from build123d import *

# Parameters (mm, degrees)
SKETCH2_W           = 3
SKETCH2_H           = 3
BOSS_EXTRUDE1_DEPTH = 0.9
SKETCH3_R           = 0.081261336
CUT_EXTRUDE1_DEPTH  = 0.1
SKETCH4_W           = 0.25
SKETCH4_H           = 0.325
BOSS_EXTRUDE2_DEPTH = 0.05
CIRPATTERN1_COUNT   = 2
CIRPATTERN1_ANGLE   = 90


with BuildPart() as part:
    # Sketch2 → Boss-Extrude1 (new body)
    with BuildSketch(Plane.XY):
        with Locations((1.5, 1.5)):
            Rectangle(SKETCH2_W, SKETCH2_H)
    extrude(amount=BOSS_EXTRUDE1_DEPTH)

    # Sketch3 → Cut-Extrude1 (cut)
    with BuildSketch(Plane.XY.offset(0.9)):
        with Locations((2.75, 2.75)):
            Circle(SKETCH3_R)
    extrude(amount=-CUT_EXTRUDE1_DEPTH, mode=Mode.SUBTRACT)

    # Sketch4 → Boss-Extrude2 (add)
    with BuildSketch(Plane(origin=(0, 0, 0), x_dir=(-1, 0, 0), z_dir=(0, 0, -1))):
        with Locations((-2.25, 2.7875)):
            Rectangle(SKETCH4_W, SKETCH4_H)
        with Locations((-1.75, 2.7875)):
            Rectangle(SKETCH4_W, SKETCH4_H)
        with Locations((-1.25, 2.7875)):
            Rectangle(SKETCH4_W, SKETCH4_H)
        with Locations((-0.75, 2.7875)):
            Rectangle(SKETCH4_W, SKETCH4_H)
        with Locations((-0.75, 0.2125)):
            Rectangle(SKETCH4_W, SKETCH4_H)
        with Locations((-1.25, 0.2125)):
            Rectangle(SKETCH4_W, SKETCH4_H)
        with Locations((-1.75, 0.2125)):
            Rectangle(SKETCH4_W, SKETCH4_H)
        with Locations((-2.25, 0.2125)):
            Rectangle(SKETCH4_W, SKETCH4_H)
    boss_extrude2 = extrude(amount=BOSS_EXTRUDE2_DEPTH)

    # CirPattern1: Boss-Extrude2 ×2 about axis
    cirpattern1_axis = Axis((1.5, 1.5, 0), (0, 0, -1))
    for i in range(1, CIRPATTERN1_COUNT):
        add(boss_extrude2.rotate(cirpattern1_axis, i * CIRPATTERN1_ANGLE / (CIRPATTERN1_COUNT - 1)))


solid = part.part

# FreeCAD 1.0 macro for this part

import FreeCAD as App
import Part
import Sketcher
from FreeCAD import Vector
Q = App.Units.Quantity

doc = App.newDocument("Part")
body = doc.addObject("PartDesign::Body", "Body")

sketch1 = body.newObject("Sketcher::SketchObject", "Sketch")
sketch1.AttachmentSupport = (doc.getObject("XY_Plane"), [""])
sketch1.MapMode = "FlatFace"
sketch1.addGeometry([
    Part.LineSegment(Vector(0, 3, 0), Vector(0, 0, 0)),
    Part.LineSegment(Vector(0, 0, 0), Vector(3, 0, 0)),
    Part.LineSegment(Vector(3, 0, 0), Vector(3, 3, 0)),
    Part.LineSegment(Vector(3, 3, 0), Vector(0, 3, 0)),
], False)
sketch1.addConstraint([
    Sketcher.Constraint("Coincident", 0, 2, 1, 1),
    Sketcher.Constraint("Coincident", 1, 2, 2, 1),
    Sketcher.Constraint("Coincident", 2, 2, 3, 1),
    Sketcher.Constraint("Coincident", 3, 2, 0, 1),
    Sketcher.Constraint("Vertical", 0),
    Sketcher.Constraint("Horizontal", 1),
    Sketcher.Constraint("Vertical", 2),
    Sketcher.Constraint("Horizontal", 3),
    Sketcher.Constraint("Coincident", 0, 2, -1, 1),
    Sketcher.Constraint("Equal", 3, 0),
    Sketcher.Constraint("DistanceX", 1, 1, 1, 2, Q("3 mm")),
])
pad1 = body.newObject("PartDesign::Pad", "Pad")
pad1.Profile = sketch1
pad1.Length = 0.9

sketch2 = body.newObject("Sketcher::SketchObject", "Sketch001")
sketch2.AttachmentSupport = (doc.getObject("XY_Plane"), [""])
sketch2.MapMode = "FlatFace"
sketch2.AttachmentOffset = App.Placement(Vector(0, 0, 0.9), App.Rotation())
sketch2.addGeometry(Part.Circle(Vector(2.75, 2.75, 0), Vector(0, 0, 1), 0.08), False)
sketch2.addConstraint([
    Sketcher.Constraint("DistanceX", -1, 1, 0, 3, Q("2.75 mm")),
    Sketcher.Constraint("DistanceY", -1, 1, 0, 3, Q("2.75 mm")),
    Sketcher.Constraint("Diameter", 0, Q("0.162523 mm")),
])
pocket1 = body.newObject("PartDesign::Pocket", "Pocket")
pocket1.Profile = sketch2
pocket1.Length = 0.1

sketch3 = body.newObject("Sketcher::SketchObject", "Sketch002")
sketch3.AttachmentSupport = (doc.getObject("XY_Plane"), [""])
sketch3.MapMode = "FlatFace"
sketch3.addGeometry([
    Part.LineSegment(Vector(2.38, 2.95, 0), Vector(2.38, 2.62, 0)),
    Part.LineSegment(Vector(2.38, 2.62, 0), Vector(2.12, 2.62, 0)),
    Part.LineSegment(Vector(2.12, 2.62, 0), Vector(2.12, 2.95, 0)),
    Part.LineSegment(Vector(2.12, 2.95, 0), Vector(2.38, 2.95, 0)),
    Part.LineSegment(Vector(1.88, 2.95, 0), Vector(1.88, 2.62, 0)),
    Part.LineSegment(Vector(1.88, 2.62, 0), Vector(1.62, 2.62, 0)),
    Part.LineSegment(Vector(1.62, 2.62, 0), Vector(1.62, 2.95, 0)),
    Part.LineSegment(Vector(1.62, 2.95, 0), Vector(1.88, 2.95, 0)),
    Part.LineSegment(Vector(1.38, 2.95, 0), Vector(1.38, 2.62, 0)),
    Part.LineSegment(Vector(1.38, 2.62, 0), Vector(1.12, 2.62, 0)),
    Part.LineSegment(Vector(1.12, 2.62, 0), Vector(1.12, 2.95, 0)),
    Part.LineSegment(Vector(1.12, 2.95, 0), Vector(1.38, 2.95, 0)),
    Part.LineSegment(Vector(0.88, 2.95, 0), Vector(0.88, 2.62, 0)),
    Part.LineSegment(Vector(0.88, 2.62, 0), Vector(0.62, 2.62, 0)),
    Part.LineSegment(Vector(0.62, 2.62, 0), Vector(0.62, 2.95, 0)),
    Part.LineSegment(Vector(0.62, 2.95, 0), Vector(0.88, 2.95, 0)),
    Part.LineSegment(Vector(0.88, 0.38, 0), Vector(0.88, 0.05, 0)),
    Part.LineSegment(Vector(0.88, 0.05, 0), Vector(0.62, 0.05, 0)),
    Part.LineSegment(Vector(0.62, 0.05, 0), Vector(0.62, 0.38, 0)),
    Part.LineSegment(Vector(0.62, 0.38, 0), Vector(0.88, 0.38, 0)),
    Part.LineSegment(Vector(1.38, 0.38, 0), Vector(1.38, 0.05, 0)),
    Part.LineSegment(Vector(1.38, 0.05, 0), Vector(1.12, 0.05, 0)),
    Part.LineSegment(Vector(1.12, 0.05, 0), Vector(1.12, 0.38, 0)),
    Part.LineSegment(Vector(1.12, 0.38, 0), Vector(1.38, 0.38, 0)),
    Part.LineSegment(Vector(1.88, 0.38, 0), Vector(1.88, 0.05, 0)),
    Part.LineSegment(Vector(1.88, 0.05, 0), Vector(1.62, 0.05, 0)),
    Part.LineSegment(Vector(1.62, 0.05, 0), Vector(1.62, 0.38, 0)),
    Part.LineSegment(Vector(1.62, 0.38, 0), Vector(1.88, 0.38, 0)),
    Part.LineSegment(Vector(2.38, 0.38, 0), Vector(2.38, 0.05, 0)),
    Part.LineSegment(Vector(2.38, 0.05, 0), Vector(2.12, 0.05, 0)),
    Part.LineSegment(Vector(2.12, 0.05, 0), Vector(2.12, 0.38, 0)),
    Part.LineSegment(Vector(2.12, 0.38, 0), Vector(2.38, 0.38, 0)),
], False)
sketch3.addConstraint([
    Sketcher.Constraint("Coincident", 0, 2, 1, 1),
    Sketcher.Constraint("Coincident", 1, 2, 2, 1),
    Sketcher.Constraint("Coincident", 2, 2, 3, 1),
    Sketcher.Constraint("Coincident", 3, 2, 0, 1),
    Sketcher.Constraint("Coincident", 4, 2, 5, 1),
    Sketcher.Constraint("Coincident", 5, 2, 6, 1),
    Sketcher.Constraint("Coincident", 6, 2, 7, 1),
    Sketcher.Constraint("Coincident", 7, 2, 4, 1),
    Sketcher.Constraint("Coincident", 8, 2, 9, 1),
    Sketcher.Constraint("Coincident", 9, 2, 10, 1),
    Sketcher.Constraint("Coincident", 10, 2, 11, 1),
    Sketcher.Constraint("Coincident", 11, 2, 8, 1),
    Sketcher.Constraint("Coincident", 12, 2, 13, 1),
    Sketcher.Constraint("Coincident", 13, 2, 14, 1),
    Sketcher.Constraint("Coincident", 14, 2, 15, 1),
    Sketcher.Constraint("Coincident", 15, 2, 12, 1),
    Sketcher.Constraint("Coincident", 16, 2, 17, 1),
    Sketcher.Constraint("Coincident", 17, 2, 18, 1),
    Sketcher.Constraint("Coincident", 18, 2, 19, 1),
    Sketcher.Constraint("Coincident", 19, 2, 16, 1),
    Sketcher.Constraint("Coincident", 20, 2, 21, 1),
    Sketcher.Constraint("Coincident", 21, 2, 22, 1),
    Sketcher.Constraint("Coincident", 22, 2, 23, 1),
    Sketcher.Constraint("Coincident", 23, 2, 20, 1),
    Sketcher.Constraint("Coincident", 24, 2, 25, 1),
    Sketcher.Constraint("Coincident", 25, 2, 26, 1),
    Sketcher.Constraint("Coincident", 26, 2, 27, 1),
    Sketcher.Constraint("Coincident", 27, 2, 24, 1),
    Sketcher.Constraint("Coincident", 28, 2, 29, 1),
    Sketcher.Constraint("Coincident", 29, 2, 30, 1),
    Sketcher.Constraint("Coincident", 30, 2, 31, 1),
    Sketcher.Constraint("Coincident", 31, 2, 28, 1),
    Sketcher.Constraint("Vertical", 0),
    Sketcher.Constraint("Horizontal", 1),
    Sketcher.Constraint("Vertical", 2),
    Sketcher.Constraint("Horizontal", 3),
    Sketcher.Constraint("Vertical", 4),
    Sketcher.Constraint("Horizontal", 5),
    Sketcher.Constraint("Vertical", 6),
    Sketcher.Constraint("Horizontal", 7),
    Sketcher.Constraint("Vertical", 8),
    Sketcher.Constraint("Horizontal", 9),
    Sketcher.Constraint("Vertical", 10),
    Sketcher.Constraint("Horizontal", 11),
    Sketcher.Constraint("Vertical", 12),
    Sketcher.Constraint("Horizontal", 13),
    Sketcher.Constraint("Vertical", 14),
    Sketcher.Constraint("Horizontal", 15),
    Sketcher.Constraint("Vertical", 16),
    Sketcher.Constraint("Horizontal", 17),
    Sketcher.Constraint("Vertical", 18),
    Sketcher.Constraint("Horizontal", 19),
    Sketcher.Constraint("Vertical", 20),
    Sketcher.Constraint("Horizontal", 21),
    Sketcher.Constraint("Vertical", 22),
    Sketcher.Constraint("Horizontal", 23),
    Sketcher.Constraint("Vertical", 24),
    Sketcher.Constraint("Horizontal", 25),
    Sketcher.Constraint("Vertical", 26),
    Sketcher.Constraint("Horizontal", 27),
    Sketcher.Constraint("Vertical", 28),
    Sketcher.Constraint("Horizontal", 29),
    Sketcher.Constraint("Vertical", 30),
    Sketcher.Constraint("Horizontal", 31),
    Sketcher.Constraint("Horizontal", 1, 2, 4, 2),
    Sketcher.Constraint("Horizontal", 3, 2, 6, 2),
    Sketcher.Constraint("Horizontal", 5, 2, 8, 2),
    Sketcher.Constraint("Horizontal", 7, 2, 10, 2),
    Sketcher.Constraint("Horizontal", 9, 2, 12, 2),
    Sketcher.Constraint("Horizontal", 11, 2, 14, 2),
    Sketcher.Constraint("Horizontal", 17, 2, 20, 2),
    Sketcher.Constraint("Horizontal", 19, 2, 22, 2),
    Sketcher.Constraint("Horizontal", 21, 2, 24, 2),
    Sketcher.Constraint("Horizontal", 23, 2, 26, 2),
    Sketcher.Constraint("Horizontal", 25, 2, 28, 2),
    Sketcher.Constraint("Horizontal", 27, 2, 30, 2),
    Sketcher.Constraint("Vertical", 15, 2, 16, 2),
    Sketcher.Constraint("Vertical", 14, 2, 17, 2),
    Sketcher.Constraint("Vertical", 11, 2, 20, 2),
    Sketcher.Constraint("Vertical", 10, 2, 21, 2),
    Sketcher.Constraint("Vertical", 7, 2, 24, 2),
    Sketcher.Constraint("Vertical", 6, 2, 25, 2),
    Sketcher.Constraint("Vertical", 3, 2, 28, 2),
    Sketcher.Constraint("Vertical", 2, 2, 29, 2),
    Sketcher.Constraint("Equal", 3, 5),
    Sketcher.Constraint("Equal", 7, 9),
    Sketcher.Constraint("Equal", 11, 13),
    Sketcher.Constraint("Equal", 14, 16),
    Sketcher.Constraint("DistanceX", 16, 2, 24, 2, Q("1 mm")),
    Sketcher.Constraint("DistanceX", 20, 2, 28, 2, Q("1 mm")),
    Sketcher.Constraint("DistanceX", 1, 2, 1, 1, Q("0.25 mm")),
    Sketcher.Constraint("DistanceX", 4, 2, 0, 2, Q("0.5 mm")),
    Sketcher.Constraint("DistanceY", 0, 2, 0, 1, Q("0.325 mm")),
    Sketcher.Constraint("DistanceY", -1, 1, 2, 2, Q("2.95 mm")),
    Sketcher.Constraint("DistanceY", -1, 1, 16, 2, Q("0.05 mm")),
    Sketcher.Constraint("DistanceX", -1, 1, 0, 2, Q("2.375 mm")),
])
pad2 = body.newObject("PartDesign::Pad", "Pad001")
pad2.Profile = sketch3
pad2.Length = 0.05
pad2.Reversed = True
doc.recompute()

datumline = body.newObject("PartDesign::Line", "DatumLine")
datumline.Placement = App.Placement(Vector(1.5, 1.5, 0), App.Rotation(Vector(0, 0, 1), Vector(0, 0, -1)))
polarpattern = body.newObject("PartDesign::PolarPattern", "PolarPattern")
polarpattern.Originals = [pad2]
polarpattern.Axis = (datumline, [""])
polarpattern.Angle = 90
polarpattern.Occurrences = 2
body.Tip = polarpattern

doc.recompute()
